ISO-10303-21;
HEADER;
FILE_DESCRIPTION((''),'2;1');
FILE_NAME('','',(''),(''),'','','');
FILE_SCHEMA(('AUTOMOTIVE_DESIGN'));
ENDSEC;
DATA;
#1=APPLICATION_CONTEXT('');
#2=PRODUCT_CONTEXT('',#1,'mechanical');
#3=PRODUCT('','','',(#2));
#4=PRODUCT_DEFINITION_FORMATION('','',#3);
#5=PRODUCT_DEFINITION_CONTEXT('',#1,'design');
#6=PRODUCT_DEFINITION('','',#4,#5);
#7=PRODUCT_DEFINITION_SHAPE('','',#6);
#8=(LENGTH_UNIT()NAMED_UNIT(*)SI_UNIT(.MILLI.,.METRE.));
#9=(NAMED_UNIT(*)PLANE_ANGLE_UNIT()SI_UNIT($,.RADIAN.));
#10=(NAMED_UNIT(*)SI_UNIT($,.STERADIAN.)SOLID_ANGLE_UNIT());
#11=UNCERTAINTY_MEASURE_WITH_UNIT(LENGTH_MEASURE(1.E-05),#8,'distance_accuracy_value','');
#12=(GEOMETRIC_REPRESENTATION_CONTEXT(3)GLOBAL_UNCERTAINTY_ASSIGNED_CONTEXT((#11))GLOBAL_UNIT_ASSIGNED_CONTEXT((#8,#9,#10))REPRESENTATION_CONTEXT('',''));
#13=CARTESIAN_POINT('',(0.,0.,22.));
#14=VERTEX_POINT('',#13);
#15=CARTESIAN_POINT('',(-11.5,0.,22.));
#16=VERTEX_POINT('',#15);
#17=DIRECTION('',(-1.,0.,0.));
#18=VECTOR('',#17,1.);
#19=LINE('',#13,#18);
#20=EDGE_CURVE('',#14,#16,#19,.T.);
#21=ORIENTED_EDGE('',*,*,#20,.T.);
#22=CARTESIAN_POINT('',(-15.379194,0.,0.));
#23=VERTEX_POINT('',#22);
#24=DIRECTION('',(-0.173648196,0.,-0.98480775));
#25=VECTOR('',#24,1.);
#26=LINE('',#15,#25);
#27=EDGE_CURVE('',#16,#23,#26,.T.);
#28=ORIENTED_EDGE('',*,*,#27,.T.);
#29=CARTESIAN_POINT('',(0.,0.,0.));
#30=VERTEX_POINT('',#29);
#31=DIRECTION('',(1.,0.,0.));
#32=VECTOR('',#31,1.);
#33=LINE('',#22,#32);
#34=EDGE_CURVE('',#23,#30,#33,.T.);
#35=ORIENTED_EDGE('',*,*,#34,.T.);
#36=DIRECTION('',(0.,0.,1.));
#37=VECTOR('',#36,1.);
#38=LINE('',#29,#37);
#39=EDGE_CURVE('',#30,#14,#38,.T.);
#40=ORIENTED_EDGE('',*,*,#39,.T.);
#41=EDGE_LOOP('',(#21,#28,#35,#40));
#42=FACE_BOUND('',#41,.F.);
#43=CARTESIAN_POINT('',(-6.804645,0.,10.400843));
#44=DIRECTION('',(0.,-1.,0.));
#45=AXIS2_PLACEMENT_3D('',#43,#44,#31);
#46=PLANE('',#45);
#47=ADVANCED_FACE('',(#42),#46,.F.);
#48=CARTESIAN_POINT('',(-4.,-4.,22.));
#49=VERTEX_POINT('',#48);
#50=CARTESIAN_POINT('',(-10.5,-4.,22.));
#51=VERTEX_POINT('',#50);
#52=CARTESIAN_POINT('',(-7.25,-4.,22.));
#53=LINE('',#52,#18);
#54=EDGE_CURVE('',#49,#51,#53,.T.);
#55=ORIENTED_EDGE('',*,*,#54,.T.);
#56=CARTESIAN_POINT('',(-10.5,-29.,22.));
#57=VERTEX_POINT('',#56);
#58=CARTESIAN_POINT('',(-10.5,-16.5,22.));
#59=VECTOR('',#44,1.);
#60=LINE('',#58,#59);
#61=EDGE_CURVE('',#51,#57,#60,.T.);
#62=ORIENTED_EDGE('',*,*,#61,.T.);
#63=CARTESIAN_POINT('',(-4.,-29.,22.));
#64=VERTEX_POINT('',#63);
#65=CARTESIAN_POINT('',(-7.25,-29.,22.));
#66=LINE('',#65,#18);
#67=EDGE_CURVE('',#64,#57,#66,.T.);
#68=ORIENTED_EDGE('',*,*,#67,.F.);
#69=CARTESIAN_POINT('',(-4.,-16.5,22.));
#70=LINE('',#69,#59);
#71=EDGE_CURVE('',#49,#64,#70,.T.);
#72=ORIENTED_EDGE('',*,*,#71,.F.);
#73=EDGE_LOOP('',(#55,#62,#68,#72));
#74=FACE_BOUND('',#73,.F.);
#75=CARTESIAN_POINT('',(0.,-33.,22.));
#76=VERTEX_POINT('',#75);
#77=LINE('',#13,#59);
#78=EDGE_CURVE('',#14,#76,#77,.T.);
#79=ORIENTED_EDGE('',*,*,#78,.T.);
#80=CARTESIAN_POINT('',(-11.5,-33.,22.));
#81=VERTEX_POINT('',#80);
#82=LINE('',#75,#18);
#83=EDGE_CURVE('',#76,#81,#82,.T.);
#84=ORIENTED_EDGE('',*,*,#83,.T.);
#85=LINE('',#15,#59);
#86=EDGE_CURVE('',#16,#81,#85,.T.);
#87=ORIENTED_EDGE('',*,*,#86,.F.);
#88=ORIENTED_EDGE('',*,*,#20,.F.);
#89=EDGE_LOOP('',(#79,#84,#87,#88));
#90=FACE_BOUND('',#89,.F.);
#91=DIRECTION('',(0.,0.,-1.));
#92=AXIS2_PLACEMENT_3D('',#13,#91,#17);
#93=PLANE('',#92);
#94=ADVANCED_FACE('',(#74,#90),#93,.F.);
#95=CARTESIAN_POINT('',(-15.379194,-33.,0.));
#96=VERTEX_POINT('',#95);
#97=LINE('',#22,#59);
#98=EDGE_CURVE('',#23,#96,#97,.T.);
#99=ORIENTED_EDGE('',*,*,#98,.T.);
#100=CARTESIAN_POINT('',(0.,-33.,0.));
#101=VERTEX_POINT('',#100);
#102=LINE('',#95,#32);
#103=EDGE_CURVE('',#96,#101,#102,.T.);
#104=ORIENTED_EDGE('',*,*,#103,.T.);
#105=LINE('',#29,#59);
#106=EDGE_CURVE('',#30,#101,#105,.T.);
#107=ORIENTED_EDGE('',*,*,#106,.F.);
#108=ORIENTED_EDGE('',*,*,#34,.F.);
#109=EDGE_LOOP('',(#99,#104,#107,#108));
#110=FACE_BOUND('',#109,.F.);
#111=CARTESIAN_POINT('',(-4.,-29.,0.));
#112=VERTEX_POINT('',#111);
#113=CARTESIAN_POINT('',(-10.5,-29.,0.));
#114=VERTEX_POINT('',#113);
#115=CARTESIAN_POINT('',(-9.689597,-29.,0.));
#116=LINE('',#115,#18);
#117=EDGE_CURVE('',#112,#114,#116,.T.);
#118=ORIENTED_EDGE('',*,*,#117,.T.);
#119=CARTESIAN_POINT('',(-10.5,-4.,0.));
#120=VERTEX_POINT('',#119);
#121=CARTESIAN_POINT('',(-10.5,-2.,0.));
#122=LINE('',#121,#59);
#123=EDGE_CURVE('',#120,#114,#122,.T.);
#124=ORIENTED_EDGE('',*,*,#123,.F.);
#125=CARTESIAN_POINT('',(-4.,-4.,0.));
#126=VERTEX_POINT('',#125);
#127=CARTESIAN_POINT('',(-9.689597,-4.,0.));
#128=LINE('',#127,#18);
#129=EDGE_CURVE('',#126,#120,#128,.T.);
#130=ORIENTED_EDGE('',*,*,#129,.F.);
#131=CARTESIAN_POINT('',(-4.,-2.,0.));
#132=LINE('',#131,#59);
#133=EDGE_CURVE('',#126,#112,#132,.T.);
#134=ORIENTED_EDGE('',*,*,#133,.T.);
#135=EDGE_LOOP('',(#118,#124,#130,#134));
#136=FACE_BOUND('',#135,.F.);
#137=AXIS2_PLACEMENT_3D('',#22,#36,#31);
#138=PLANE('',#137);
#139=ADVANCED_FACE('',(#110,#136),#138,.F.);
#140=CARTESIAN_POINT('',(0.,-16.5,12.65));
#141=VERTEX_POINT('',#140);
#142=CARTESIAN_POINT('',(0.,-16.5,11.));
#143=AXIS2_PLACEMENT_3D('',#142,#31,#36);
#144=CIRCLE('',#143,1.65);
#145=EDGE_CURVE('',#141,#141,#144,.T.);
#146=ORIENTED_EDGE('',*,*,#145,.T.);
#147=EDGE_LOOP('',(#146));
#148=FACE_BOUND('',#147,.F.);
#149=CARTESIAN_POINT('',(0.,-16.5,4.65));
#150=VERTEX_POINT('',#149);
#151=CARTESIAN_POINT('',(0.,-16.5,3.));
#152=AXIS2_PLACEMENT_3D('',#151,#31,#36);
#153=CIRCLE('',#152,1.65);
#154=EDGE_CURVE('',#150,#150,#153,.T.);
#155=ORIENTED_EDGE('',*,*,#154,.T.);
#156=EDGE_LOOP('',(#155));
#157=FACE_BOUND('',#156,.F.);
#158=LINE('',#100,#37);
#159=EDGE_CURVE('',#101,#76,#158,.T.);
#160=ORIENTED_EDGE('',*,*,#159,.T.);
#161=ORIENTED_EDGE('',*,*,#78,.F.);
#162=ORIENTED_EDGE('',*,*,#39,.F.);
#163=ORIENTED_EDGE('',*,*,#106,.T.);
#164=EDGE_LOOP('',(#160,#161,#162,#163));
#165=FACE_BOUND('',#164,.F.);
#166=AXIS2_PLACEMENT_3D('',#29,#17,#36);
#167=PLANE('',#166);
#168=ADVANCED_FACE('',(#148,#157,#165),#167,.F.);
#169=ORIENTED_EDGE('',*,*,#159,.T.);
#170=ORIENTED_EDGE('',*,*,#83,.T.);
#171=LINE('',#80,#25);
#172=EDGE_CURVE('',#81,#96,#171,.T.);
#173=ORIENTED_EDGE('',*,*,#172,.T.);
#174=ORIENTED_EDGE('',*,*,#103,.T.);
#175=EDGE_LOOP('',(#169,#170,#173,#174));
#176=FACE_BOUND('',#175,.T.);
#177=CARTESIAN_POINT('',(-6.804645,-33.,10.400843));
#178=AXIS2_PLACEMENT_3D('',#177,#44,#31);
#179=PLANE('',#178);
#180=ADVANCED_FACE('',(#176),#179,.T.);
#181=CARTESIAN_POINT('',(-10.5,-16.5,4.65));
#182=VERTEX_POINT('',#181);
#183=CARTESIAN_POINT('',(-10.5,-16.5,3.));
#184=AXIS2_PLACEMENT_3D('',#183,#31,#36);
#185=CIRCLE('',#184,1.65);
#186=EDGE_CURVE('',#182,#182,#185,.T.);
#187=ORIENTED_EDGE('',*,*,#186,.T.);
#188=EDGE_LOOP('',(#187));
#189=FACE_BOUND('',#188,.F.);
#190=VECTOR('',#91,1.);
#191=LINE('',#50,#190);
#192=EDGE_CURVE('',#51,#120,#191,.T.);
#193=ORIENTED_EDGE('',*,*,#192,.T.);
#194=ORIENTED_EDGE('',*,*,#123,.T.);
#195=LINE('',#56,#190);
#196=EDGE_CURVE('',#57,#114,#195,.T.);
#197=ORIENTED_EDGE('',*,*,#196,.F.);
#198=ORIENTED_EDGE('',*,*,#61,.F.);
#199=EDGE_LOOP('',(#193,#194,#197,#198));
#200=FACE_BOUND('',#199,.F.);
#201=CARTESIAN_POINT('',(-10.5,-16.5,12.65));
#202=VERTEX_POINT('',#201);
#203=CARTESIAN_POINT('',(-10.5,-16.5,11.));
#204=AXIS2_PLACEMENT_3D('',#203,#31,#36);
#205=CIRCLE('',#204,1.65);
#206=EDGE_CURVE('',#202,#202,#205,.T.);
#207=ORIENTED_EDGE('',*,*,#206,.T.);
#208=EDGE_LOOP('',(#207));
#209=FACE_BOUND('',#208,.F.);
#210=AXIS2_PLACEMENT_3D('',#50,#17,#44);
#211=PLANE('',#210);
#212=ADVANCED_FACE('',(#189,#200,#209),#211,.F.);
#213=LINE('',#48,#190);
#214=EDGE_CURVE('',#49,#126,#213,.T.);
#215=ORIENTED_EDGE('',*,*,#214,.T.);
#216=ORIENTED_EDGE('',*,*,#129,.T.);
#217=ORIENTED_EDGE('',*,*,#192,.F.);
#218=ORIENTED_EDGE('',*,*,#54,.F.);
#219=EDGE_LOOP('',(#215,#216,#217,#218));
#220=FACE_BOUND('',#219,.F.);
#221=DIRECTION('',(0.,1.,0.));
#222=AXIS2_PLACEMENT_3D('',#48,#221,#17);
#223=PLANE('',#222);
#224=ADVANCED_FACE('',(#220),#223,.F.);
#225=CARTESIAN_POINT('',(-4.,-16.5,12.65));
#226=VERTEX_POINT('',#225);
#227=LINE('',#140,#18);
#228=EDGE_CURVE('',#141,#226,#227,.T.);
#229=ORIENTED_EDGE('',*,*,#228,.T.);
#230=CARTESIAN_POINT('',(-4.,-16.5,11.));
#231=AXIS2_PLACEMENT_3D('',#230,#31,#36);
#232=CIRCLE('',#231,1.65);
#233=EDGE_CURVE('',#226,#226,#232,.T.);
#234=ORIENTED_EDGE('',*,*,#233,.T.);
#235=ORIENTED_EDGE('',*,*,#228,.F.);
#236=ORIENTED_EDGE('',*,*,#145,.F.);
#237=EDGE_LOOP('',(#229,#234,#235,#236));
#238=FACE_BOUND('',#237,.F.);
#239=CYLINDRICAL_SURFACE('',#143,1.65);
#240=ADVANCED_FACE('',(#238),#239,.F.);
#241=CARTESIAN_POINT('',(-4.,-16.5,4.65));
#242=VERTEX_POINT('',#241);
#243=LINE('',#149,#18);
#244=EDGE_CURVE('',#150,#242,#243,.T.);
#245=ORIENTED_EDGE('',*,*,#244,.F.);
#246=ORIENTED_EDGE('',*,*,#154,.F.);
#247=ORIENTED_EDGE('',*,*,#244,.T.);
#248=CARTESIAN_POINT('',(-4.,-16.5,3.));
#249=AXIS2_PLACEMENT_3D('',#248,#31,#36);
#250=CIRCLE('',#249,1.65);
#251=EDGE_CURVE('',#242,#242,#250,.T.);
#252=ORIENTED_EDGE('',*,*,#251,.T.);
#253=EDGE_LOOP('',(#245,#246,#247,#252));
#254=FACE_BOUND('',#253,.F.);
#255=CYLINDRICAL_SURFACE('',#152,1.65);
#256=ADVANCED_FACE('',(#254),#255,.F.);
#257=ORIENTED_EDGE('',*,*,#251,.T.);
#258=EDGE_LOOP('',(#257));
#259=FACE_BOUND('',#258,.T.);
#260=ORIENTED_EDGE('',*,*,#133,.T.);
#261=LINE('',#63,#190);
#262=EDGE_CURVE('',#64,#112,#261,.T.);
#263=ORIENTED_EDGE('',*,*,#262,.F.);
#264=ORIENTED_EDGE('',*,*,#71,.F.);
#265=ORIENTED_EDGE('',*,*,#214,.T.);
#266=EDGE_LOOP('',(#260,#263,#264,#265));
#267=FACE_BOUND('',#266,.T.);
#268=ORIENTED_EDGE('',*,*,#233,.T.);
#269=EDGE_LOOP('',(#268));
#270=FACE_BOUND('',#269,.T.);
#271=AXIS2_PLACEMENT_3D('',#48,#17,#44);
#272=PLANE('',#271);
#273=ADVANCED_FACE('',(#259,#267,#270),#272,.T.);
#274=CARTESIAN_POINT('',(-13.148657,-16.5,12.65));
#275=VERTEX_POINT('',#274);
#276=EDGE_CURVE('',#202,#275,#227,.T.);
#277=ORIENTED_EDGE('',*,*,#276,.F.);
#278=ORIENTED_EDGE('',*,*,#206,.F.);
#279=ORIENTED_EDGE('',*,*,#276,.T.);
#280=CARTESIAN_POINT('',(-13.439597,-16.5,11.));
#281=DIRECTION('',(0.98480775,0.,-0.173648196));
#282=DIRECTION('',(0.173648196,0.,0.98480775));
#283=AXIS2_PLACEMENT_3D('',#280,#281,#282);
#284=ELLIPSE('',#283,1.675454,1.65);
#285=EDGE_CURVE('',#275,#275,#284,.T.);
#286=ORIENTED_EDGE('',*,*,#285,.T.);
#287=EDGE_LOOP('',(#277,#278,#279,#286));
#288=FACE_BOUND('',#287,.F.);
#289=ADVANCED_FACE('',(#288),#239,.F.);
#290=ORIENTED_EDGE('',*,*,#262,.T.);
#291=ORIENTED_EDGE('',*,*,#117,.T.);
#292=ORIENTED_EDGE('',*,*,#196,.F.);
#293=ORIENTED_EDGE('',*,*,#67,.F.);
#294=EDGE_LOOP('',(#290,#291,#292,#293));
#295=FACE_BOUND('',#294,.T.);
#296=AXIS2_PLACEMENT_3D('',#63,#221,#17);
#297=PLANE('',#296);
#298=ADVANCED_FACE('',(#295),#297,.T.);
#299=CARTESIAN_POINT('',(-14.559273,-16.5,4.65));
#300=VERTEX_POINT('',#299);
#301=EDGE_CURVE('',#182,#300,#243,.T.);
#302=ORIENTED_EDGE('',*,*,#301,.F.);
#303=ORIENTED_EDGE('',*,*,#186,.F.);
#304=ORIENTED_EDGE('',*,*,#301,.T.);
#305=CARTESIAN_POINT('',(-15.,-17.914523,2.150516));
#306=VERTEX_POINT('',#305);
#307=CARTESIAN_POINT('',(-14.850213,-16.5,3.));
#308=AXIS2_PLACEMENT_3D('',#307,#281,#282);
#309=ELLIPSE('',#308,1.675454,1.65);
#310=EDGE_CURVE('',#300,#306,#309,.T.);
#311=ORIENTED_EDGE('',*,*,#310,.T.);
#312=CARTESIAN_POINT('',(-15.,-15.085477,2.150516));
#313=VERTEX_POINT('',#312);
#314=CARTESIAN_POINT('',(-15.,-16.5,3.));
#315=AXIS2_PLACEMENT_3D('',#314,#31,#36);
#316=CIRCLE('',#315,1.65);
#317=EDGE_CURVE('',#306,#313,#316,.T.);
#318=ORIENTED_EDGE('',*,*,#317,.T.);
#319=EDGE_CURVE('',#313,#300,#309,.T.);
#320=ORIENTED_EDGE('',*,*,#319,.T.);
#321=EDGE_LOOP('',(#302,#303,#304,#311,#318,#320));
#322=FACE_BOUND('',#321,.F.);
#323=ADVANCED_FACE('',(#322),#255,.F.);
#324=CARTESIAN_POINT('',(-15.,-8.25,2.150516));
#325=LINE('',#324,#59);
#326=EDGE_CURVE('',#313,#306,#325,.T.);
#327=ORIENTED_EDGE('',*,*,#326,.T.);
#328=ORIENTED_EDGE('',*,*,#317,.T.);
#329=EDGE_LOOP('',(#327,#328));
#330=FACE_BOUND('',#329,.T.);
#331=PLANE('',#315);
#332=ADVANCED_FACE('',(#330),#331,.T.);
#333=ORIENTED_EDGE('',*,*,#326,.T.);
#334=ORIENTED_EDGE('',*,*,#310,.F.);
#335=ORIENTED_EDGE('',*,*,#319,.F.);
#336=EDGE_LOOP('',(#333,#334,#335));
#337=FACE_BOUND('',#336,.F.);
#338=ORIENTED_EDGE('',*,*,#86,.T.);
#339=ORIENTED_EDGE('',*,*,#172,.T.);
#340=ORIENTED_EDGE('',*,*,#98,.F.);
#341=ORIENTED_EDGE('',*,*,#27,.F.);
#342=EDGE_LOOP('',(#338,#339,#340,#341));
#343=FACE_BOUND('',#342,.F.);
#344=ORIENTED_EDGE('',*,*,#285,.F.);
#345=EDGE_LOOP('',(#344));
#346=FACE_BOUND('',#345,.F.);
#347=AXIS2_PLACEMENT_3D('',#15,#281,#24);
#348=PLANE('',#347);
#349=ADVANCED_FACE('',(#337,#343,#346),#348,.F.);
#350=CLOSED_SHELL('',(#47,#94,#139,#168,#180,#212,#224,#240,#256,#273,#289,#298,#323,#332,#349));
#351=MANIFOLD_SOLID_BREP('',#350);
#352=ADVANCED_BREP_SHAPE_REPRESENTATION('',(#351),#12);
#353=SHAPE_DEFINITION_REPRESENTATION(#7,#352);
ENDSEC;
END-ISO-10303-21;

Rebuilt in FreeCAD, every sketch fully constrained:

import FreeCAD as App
import Part
import Sketcher
from FreeCAD import Vector
Q = App.Units.Quantity


def add_polygon(sketch, points):
    """Adds a closed chain of lines whose ends are joined by coincident constraints."""
    first, n = sketch.GeometryCount, len(points)
    for a, b in zip(points, points[1:] + points[:1]):
        sketch.addGeometry(Part.LineSegment(App.Vector(*a, 0), App.Vector(*b, 0)), False)
    for i in range(n):
        sketch.addConstraint(Sketcher.Constraint("Coincident", first + i, 2, first + (i + 1) % n, 1))

doc = App.newDocument("Part")
body = doc.addObject("PartDesign::Body", "Body")

sketch1 = body.newObject("Sketcher::SketchObject", "Sketch")
sketch1.AttachmentSupport = (doc.getObject("XZ_Plane"), [""])
sketch1.MapMode = "FlatFace"
add_polygon(sketch1, [(-15, 0), (0, 0), (0, 22), (-12, 22)])
sketch1.addConstraint([
    Sketcher.Constraint("Horizontal", 0),
    Sketcher.Constraint("Vertical", 1),
    Sketcher.Constraint("Horizontal", 2),
    Sketcher.Constraint("Coincident", 0, 2, -1, 1),
    Sketcher.Constraint("DistanceY", 1, 1, 1, 2, 22.0),
    Sketcher.Constraint("Angle", 3, Q("-100.000001 deg")),
    Sketcher.Constraint("DistanceX", 2, 2, 2, 1, 11.5),
])
pad1 = body.newObject("PartDesign::Pad", "Pad")
pad1.Profile = sketch1
pad1.Length = 33

sketch2 = body.newObject("Sketcher::SketchObject", "Sketch001")
sketch2.AttachmentSupport = (doc.getObject("XY_Plane"), [""])
sketch2.MapMode = "FlatFace"
sketch2.AttachmentOffset = App.Placement(Vector(0, 0, 22), App.Rotation())
add_polygon(sketch2, [(-4, -29), (-4, -4), (-10, -4), (-10, -29)])
sketch2.addConstraint([
    Sketcher.Constraint("Vertical", 0),
    Sketcher.Constraint("Horizontal", 1),
    Sketcher.Constraint("Vertical", 2),
    Sketcher.Constraint("Horizontal", 3),
    Sketcher.Constraint("DistanceY", 0, 1, 0, 2, 25.0),
    Sketcher.Constraint("DistanceX", 1, 2, 1, 1, 6.5),
    Sketcher.Constraint("DistanceX", 0, 2, -1, 1, 4.0),
    Sketcher.Constraint("DistanceY", 0, 2, -1, 1, 4.0),
])
pocket1 = body.newObject("PartDesign::Pocket", "Pocket")
pocket1.Profile = sketch2
pocket1.Length = 30

sketch3 = body.newObject("Sketcher::SketchObject", "Sketch002")
sketch3.AttachmentSupport = (doc.getObject("YZ_Plane"), [""])
sketch3.MapMode = "FlatFace"
sketch3.addGeometry([
    Part.Circle(Vector(-16.5, 3, 0), Vector(0, 0, 1), 1.6),
    Part.Circle(Vector(-16.5, 11, 0), Vector(0, 0, 1), 1.6),
], False)
sketch3.addConstraint([
    Sketcher.Constraint("Equal", 0, 1),
    Sketcher.Constraint("Vertical", 0, 3, 1, 3),
    Sketcher.Constraint("Diameter", 0, 3.3),
    Sketcher.Constraint("DistanceY", -1, 1, 0, 3, 3.0),
    Sketcher.Constraint("DistanceY", -1, 1, 1, 3, 11.0),
    Sketcher.Constraint("DistanceX", 0, 3, -1, 1, 16.5),
])
pocket2 = body.newObject("PartDesign::Pocket", "Pocket001")
pocket2.Profile = sketch3
pocket2.Length = 15

doc.recompute()
